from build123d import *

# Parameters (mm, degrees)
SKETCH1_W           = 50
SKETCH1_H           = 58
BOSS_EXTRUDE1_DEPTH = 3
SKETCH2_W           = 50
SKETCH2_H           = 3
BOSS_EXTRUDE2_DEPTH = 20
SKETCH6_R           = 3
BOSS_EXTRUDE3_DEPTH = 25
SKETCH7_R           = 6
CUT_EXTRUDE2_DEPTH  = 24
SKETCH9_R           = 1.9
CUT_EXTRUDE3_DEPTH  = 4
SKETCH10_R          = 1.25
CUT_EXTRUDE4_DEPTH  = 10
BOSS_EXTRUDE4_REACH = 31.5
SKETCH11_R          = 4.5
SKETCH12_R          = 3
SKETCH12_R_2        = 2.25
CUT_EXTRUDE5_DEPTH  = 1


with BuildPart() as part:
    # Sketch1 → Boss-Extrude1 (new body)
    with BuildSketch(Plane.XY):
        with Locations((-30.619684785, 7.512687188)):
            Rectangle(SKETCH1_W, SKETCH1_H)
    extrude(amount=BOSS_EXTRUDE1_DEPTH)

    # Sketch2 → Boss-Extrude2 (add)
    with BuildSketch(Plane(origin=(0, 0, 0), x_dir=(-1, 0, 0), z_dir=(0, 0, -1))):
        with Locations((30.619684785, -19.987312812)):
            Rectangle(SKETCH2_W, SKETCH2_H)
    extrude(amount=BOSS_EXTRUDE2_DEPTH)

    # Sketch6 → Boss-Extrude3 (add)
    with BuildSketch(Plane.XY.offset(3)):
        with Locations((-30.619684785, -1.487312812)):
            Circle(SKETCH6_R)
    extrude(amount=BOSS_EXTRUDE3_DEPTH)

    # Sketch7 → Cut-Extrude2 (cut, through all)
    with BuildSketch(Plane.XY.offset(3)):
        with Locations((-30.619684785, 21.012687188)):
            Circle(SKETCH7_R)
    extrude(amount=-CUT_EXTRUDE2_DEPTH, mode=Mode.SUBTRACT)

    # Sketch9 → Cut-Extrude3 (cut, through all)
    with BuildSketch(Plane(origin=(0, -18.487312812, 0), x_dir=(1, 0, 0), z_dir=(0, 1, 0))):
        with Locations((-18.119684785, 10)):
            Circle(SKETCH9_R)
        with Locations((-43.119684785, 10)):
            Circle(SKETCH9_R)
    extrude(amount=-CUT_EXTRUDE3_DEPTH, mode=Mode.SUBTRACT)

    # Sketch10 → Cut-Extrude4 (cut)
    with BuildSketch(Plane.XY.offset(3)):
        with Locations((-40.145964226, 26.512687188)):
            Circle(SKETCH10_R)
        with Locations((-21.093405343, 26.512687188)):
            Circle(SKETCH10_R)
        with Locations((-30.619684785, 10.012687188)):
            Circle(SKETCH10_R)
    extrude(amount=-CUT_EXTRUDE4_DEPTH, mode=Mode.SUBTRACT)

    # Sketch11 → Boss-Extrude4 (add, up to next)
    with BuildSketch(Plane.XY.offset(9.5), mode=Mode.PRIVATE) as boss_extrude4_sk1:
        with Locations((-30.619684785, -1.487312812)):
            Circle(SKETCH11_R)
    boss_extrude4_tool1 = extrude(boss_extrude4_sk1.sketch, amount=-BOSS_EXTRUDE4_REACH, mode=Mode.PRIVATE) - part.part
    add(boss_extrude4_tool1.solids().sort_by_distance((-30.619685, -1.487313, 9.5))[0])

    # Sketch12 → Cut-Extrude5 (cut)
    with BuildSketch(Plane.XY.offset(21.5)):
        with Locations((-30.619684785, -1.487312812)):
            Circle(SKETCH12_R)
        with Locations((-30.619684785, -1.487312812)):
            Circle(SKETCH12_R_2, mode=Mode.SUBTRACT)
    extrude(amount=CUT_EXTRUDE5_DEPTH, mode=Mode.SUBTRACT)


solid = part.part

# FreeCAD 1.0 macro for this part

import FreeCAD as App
import Part
import Sketcher

V = App.Vector
Q = App.Units.Quantity


def add_polygon(sketch, points):
    """Adds a closed chain of lines whose ends are joined by coincident constraints."""
    first, n = sketch.GeometryCount, len(points)
    for a, b in zip(points, points[1:] + points[:1]):
        sketch.addGeometry(Part.LineSegment(App.Vector(*a, 0), App.Vector(*b, 0)), False)
    for i in range(n):
        sketch.addConstraint(Sketcher.Constraint("Coincident", first + i, 2, first + (i + 1) % n, 1))

doc = App.newDocument("Part")
body = doc.addObject("PartDesign::Body", "Body")

# Sketch on XY plane
sketch1 = body.newObject("Sketcher::SketchObject", "Sketch")
sketch1.AttachmentSupport = (doc.getObject("XY_Plane"), [""])
sketch1.MapMode = "FlatFace"
add_polygon(sketch1, [(-56, 37), (-56, -21), (-6, -21), (-6, 37)])  # lines 0-3
sketch1.addConstraint([
    Sketcher.Constraint("Vertical", 0),
    Sketcher.Constraint("Horizontal", 1),
    Sketcher.Constraint("Vertical", 2),
    Sketcher.Constraint("Horizontal", 3),
    Sketcher.Constraint("DistanceX", 1, 1, 1, 2, Q("50 mm")),
    Sketcher.Constraint("DistanceY", 0, 2, 0, 1, Q("58 mm")),
    Sketcher.Constraint("DistanceX", 0, 2, -1, 1, Q("55.619685 mm")),
    Sketcher.Constraint("DistanceY", 0, 2, -1, 1, Q("21.487313 mm")),
])
pad1 = body.newObject("PartDesign::Pad", "Pad")
pad1.Profile = sketch1
pad1.Length = 3

# Sketch on XY plane
sketch2 = body.newObject("Sketcher::SketchObject", "Sketch001")
sketch2.AttachmentSupport = (doc.getObject("XY_Plane"), [""])
sketch2.MapMode = "FlatFace"
add_polygon(sketch2, [(-5.6, -18.5), (-5.6, -21.5), (-55.6, -21.5), (-55.6, -18.5)])  # lines 0-3
sketch2.addConstraint([
    Sketcher.Constraint("Vertical", 0),
    Sketcher.Constraint("Horizontal", 1),
    Sketcher.Constraint("Vertical", 2),
    Sketcher.Constraint("Horizontal", 3),
    Sketcher.Constraint("DistanceX", 1, 2, 1, 1, Q("50 mm")),
    Sketcher.Constraint("DistanceY", 0, 2, 0, 1, Q("3 mm")),
    Sketcher.Constraint("DistanceX", 0, 2, -1, 1, Q("5.619685 mm")),
    Sketcher.Constraint("DistanceY", 0, 2, -1, 1, Q("21.487313 mm")),
])
pad2 = body.newObject("PartDesign::Pad", "Pad001")
pad2.Profile = sketch2
pad2.Length = 20
pad2.Reversed = True

# Sketch on XY plane
sketch3 = body.newObject("Sketcher::SketchObject", "Sketch002")
sketch3.AttachmentSupport = (doc.getObject("XY_Plane"), [""])
sketch3.MapMode = "FlatFace"
sketch3.AttachmentOffset = App.Placement(V(0, 0, 3), App.Rotation())
sketch3.addGeometry(Part.Circle(V(-30.6, -1.5, 0), V(0, 0, 1), 3), False)
sketch3.addConstraint([
    Sketcher.Constraint("Diameter", 0, Q("6 mm")),
    Sketcher.Constraint("DistanceX", 0, 3, -1, 1, Q("30.619685 mm")),
    Sketcher.Constraint("DistanceY", 0, 3, -1, 1, Q("1.487313 mm")),
])
pad3 = body.newObject("PartDesign::Pad", "Pad002")
pad3.Profile = sketch3
pad3.Length = 25

# Sketch on XY plane
sketch4 = body.newObject("Sketcher::SketchObject", "Sketch003")
sketch4.AttachmentSupport = (doc.getObject("XY_Plane"), [""])
sketch4.MapMode = "FlatFace"
sketch4.AttachmentOffset = App.Placement(V(0, 0, 3), App.Rotation())
sketch4.addGeometry(Part.Circle(V(-31, 21, 0), V(0, 0, 1), 6), False)
sketch4.addConstraint([
    Sketcher.Constraint("Diameter", 0, Q("12 mm")),
    Sketcher.Constraint("DistanceX", 0, 3, -1, 1, Q("30.619685 mm")),
    Sketcher.Constraint("DistanceY", -1, 1, 0, 3, Q("21.012687 mm")),
])
pocket1 = body.newObject("PartDesign::Pocket", "Pocket")
pocket1.Profile = sketch4
pocket1.Type = "ThroughAll"

# Sketch on XZ plane
sketch5 = body.newObject("Sketcher::SketchObject", "Sketch004")
sketch5.AttachmentSupport = (doc.getObject("XZ_Plane"), [""])
sketch5.MapMode = "FlatFace"
sketch5.AttachmentOffset = App.Placement(V(0, 0, 18.487313), App.Rotation())
sketch5.addGeometry([
    Part.Circle(V(-18.1, -10, 0), V(0, 0, 1), 1.9),
    Part.Circle(V(-43.1, -10, 0), V(0, 0, 1), 1.9),
], False)
sketch5.addConstraint([
    Sketcher.Constraint("Equal", 0, 1),
    Sketcher.Constraint("Horizontal", 0, 3, 1, 3),
    Sketcher.Constraint("Diameter", 0, Q("3.8 mm")),
    Sketcher.Constraint("DistanceY", 0, 3, -1, 1, Q("10 mm")),
    Sketcher.Constraint("DistanceX", 1, 3, 0, 3, Q("25 mm")),
    Sketcher.Constraint("DistanceX", 0, 3, -1, 1, Q("18.119685 mm")),
])
pocket2 = body.newObject("PartDesign::Pocket", "Pocket001")
pocket2.Profile = sketch5
pocket2.Type = "ThroughAll"
pocket2.Reversed = True

# Sketch on XY plane
sketch6 = body.newObject("Sketcher::SketchObject", "Sketch005")
sketch6.AttachmentSupport = (doc.getObject("XY_Plane"), [""])
sketch6.MapMode = "FlatFace"
sketch6.AttachmentOffset = App.Placement(V(0, 0, 3), App.Rotation())
sketch6.addGeometry([
    Part.Circle(V(-40.1, 26.5, 0), V(0, 0, 1), 1.2),
    Part.Circle(V(-21.1, 26.5, 0), V(0, 0, 1), 1.2),
    Part.Circle(V(-30.6, 10, 0), V(0, 0, 1), 1.2),
], False)
sketch6.addConstraint([
    Sketcher.Constraint("Equal", 0, 1),
    Sketcher.Constraint("Equal", 1, 2),
    Sketcher.Constraint("Horizontal", 0, 3, 1, 3),
    Sketcher.Constraint("Diameter", 0, Q("2.5 mm")),
    Sketcher.Constraint("DistanceY", 2, 3, 0, 3, Q("16.5 mm")),
    Sketcher.Constraint("DistanceX", 0, 3, 1, 3, Q("19.052559 mm")),
    Sketcher.Constraint("DistanceX", 0, 3, 2, 3, Q("9.526279 mm")),
    Sketcher.Constraint("DistanceX", 0, 3, -1, 1, Q("40.145964 mm")),
    Sketcher.Constraint("DistanceY", -1, 1, 0, 3, Q("26.512687 mm")),
])
pocket3 = body.newObject("PartDesign::Pocket", "Pocket002")
pocket3.Profile = sketch6
pocket3.Length = 10

# Sketch on XY plane
sketch7 = body.newObject("Sketcher::SketchObject", "Sketch006")
sketch7.AttachmentSupport = (doc.getObject("XY_Plane"), [""])
sketch7.MapMode = "FlatFace"
sketch7.AttachmentOffset = App.Placement(V(0, 0, 9.5), App.Rotation())
sketch7.addGeometry(Part.Circle(V(-30.6, -1.5, 0), V(0, 0, 1), 4.5), False)
sketch7.addConstraint([
    Sketcher.Constraint("Diameter", 0, Q("9 mm")),
    Sketcher.Constraint("DistanceX", 0, 3, -1, 1, Q("30.619685 mm")),
    Sketcher.Constraint("DistanceY", 0, 3, -1, 1, Q("1.487313 mm")),
])
pad4 = body.newObject("PartDesign::Pad", "Pad003")
pad4.Profile = sketch7
pad4.Type = "UpToFirst"
pad4.Reversed = True

# Sketch on XY plane
sketch8 = body.newObject("Sketcher::SketchObject", "Sketch007")
sketch8.AttachmentSupport = (doc.getObject("XY_Plane"), [""])
sketch8.MapMode = "FlatFace"
sketch8.AttachmentOffset = App.Placement(V(0, 0, 21.5), App.Rotation())
sketch8.addGeometry([
    Part.Circle(V(-30.6, -1.5, 0), V(0, 0, 1), 3),
    Part.Circle(V(-30.6, -1.5, 0), V(0, 0, 1), 2.2),
], False)
sketch8.addConstraint([
    Sketcher.Constraint("Coincident", 1, 3, 0, 3),
    Sketcher.Constraint("Diameter", 0, Q("6 mm")),
    Sketcher.Constraint("Diameter", 1, Q("4.5 mm")),
    Sketcher.Constraint("DistanceX", 0, 3, -1, 1, Q("30.619685 mm")),
    Sketcher.Constraint("DistanceY", 0, 3, -1, 1, Q("1.487313 mm")),
])
pocket4 = body.newObject("PartDesign::Pocket", "Pocket003")
pocket4.Profile = sketch8
pocket4.Length = 1
pocket4.Reversed = True

doc.recompute()
